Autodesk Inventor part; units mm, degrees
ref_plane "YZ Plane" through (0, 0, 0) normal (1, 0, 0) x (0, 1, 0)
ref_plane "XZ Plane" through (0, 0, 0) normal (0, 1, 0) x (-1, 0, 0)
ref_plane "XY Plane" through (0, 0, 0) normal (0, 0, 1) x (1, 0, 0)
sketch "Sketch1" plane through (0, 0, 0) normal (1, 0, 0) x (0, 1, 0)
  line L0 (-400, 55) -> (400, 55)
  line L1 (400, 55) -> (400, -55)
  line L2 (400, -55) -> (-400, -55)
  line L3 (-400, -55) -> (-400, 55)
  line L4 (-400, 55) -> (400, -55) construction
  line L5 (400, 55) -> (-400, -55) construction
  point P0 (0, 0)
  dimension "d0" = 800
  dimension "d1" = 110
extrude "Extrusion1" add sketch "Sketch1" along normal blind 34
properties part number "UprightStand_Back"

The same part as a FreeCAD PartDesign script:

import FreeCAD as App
import Part
import Sketcher

V = App.Vector
Q = App.Units.Quantity


def add_polygon(sketch, points):
    """Adds a closed chain of lines whose ends are joined by coincident constraints."""
    first, n = sketch.GeometryCount, len(points)
    for a, b in zip(points, points[1:] + points[:1]):
        sketch.addGeometry(Part.LineSegment(App.Vector(*a, 0), App.Vector(*b, 0)), False)
    for i in range(n):
        sketch.addConstraint(Sketcher.Constraint("Coincident", first + i, 2, first + (i + 1) % n, 1))

doc = App.newDocument("Part")
params = doc.addObject("Spreadsheet::Sheet", "Params")
for row, (alias, value) in enumerate([
    ("sketch1_width", "800 mm"),
    ("sketch1_height", "110 mm"),
    ("pad1_length", "34 mm"),
], start=1):
    params.set(f"A{row}", alias)
    params.set(f"B{row}", "=" + value)
    params.setAlias(f"B{row}", alias)

body = doc.addObject("PartDesign::Body", "Body")

# Sketch on YZ plane
sketch1 = body.newObject("Sketcher::SketchObject", "Sketch")
sketch1.AttachmentSupport = (doc.getObject("YZ_Plane"), [""])
sketch1.MapMode = "FlatFace"
add_polygon(sketch1, [(400, 55), (-400, 55), (-400, -55), (400, -55)])  # lines 0-3
sketch1.addConstraint([
    Sketcher.Constraint("Horizontal", 0),
    Sketcher.Constraint("Vertical", 1),
    Sketcher.Constraint("Horizontal", 2),
    Sketcher.Constraint("Vertical", 3),
    Sketcher.Constraint("Symmetric", 0, 2, 2, 2, -1, 1),
    Sketcher.Constraint("DistanceX", 0, 2, 0, 1, Q("800 mm")),
    Sketcher.Constraint("DistanceY", 1, 2, 1, 1, Q("110 mm")),
])
sketch1.setExpression("Constraints[9]", "Params.sketch1_width")
sketch1.setExpression("Constraints[10]", "Params.sketch1_height")
pad1 = body.newObject("PartDesign::Pad", "Pad")
pad1.Profile = sketch1
pad1.setExpression("Length", "Params.pad1_length")

doc.recompute()
